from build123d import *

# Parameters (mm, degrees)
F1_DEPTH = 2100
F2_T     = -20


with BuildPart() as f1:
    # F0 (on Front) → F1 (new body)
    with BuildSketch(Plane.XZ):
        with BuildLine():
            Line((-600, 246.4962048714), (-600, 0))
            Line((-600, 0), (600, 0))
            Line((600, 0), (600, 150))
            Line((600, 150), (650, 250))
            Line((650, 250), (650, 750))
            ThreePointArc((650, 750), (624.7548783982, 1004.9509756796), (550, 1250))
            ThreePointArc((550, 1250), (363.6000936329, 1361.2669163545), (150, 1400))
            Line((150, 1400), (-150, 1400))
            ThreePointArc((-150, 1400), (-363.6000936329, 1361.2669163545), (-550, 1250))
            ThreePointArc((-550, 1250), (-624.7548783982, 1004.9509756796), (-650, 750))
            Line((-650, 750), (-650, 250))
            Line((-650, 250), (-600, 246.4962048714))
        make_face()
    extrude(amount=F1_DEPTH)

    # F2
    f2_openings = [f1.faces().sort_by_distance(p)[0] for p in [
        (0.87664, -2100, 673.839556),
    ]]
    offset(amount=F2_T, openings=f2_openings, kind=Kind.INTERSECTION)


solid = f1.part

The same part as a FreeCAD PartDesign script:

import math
import FreeCAD as App
import Part
import Sketcher
Q = App.Units.Quantity


def faces_at(feature, points):
    """Names of the faces that lie closest to the given points."""
    faces = feature.Shape.Faces
    near = lambda p: min(range(len(faces)), key=lambda i: faces[i].distToShape(Part.Vertex(*p))[0])
    return sorted({f"Face{near(p) + 1}" for p in points})

doc = App.newDocument("Part")
params = doc.addObject("Spreadsheet::Sheet", "Params")
for row, (alias, value) in enumerate([
    ("sketch1_radius", "1300 mm"),
    ("sketch1_width", "1200 mm"),
    ("sketch1_width2", "300 mm"),
    ("sketch1_height", "150 mm"),
    ("sketch1_height2", "500 mm"),
    ("pad1_length", "2100 mm"),
    ("thickness_wall", "20 mm"),
], start=1):
    params.set(f"A{row}", alias)
    params.set(f"B{row}", "=" + value)
    params.setAlias(f"B{row}", alias)

body = doc.addObject("PartDesign::Body", "Body")

# Sketch on XZ plane
sketch1 = body.newObject("Sketcher::SketchObject", "Sketch")
sketch1.AttachmentSupport = (doc.getObject("XZ_Plane"), [""])
sketch1.MapMode = "FlatFace"
sketch1.addGeometry(Part.LineSegment(App.Vector(-600, 246.496205, 0), App.Vector(-600, 0, 0)), False)
sketch1.addGeometry(Part.LineSegment(App.Vector(-600, 0, 0), App.Vector(600, 0, 0)), False)
sketch1.addGeometry(Part.LineSegment(App.Vector(600, 0, 0), App.Vector(600, 150, 0)), False)
sketch1.addGeometry(Part.LineSegment(App.Vector(600, 150, 0), App.Vector(650, 250, 0)), False)
sketch1.addGeometry(Part.LineSegment(App.Vector(650, 250, 0), App.Vector(650, 750, 0)), False)
sketch1.addGeometry(Part.ArcOfCircle(Part.Circle(App.Vector(-650, 750, 0), App.Vector(0, 0, 1), 1300), math.radians(0), math.radians(22.619865)), False)
sketch1.addGeometry(Part.ArcOfCircle(Part.Circle(App.Vector(150, 791.666667, 0), App.Vector(0, 0, 1), 608.333333), math.radians(48.88791), math.radians(90)), False)
sketch1.addGeometry(Part.LineSegment(App.Vector(150, 1400, 0), App.Vector(-150, 1400, 0)), False)
sketch1.addGeometry(Part.ArcOfCircle(Part.Circle(App.Vector(-150, 791.666667, 0), App.Vector(0, 0, 1), 608.333333), math.radians(90), math.radians(131.11209)), False)
sketch1.addGeometry(Part.ArcOfCircle(Part.Circle(App.Vector(650, 750, 0), App.Vector(0, 0, 1), 1300), math.radians(157.380135), math.radians(180)), False)
sketch1.addGeometry(Part.LineSegment(App.Vector(-650, 750, 0), App.Vector(-650, 250, 0)), False)
sketch1.addGeometry(Part.LineSegment(App.Vector(-650, 250, 0), App.Vector(-600, 246.496205, 0)), False)
sketch1.addConstraint(Sketcher.Constraint("Coincident", 0, 2, 1, 1))
sketch1.addConstraint(Sketcher.Constraint("Coincident", 1, 2, 2, 1))
sketch1.addConstraint(Sketcher.Constraint("Coincident", 2, 2, 3, 1))
sketch1.addConstraint(Sketcher.Constraint("Coincident", 3, 2, 4, 1))
sketch1.addConstraint(Sketcher.Constraint("Tangent", 4, 2, 5, 1))
sketch1.addConstraint(Sketcher.Constraint("Coincident", 5, 2, 6, 1))
sketch1.addConstraint(Sketcher.Constraint("Tangent", 6, 2, 7, 1))
sketch1.addConstraint(Sketcher.Constraint("Tangent", 7, 2, 8, 1))
sketch1.addConstraint(Sketcher.Constraint("Coincident", 8, 2, 9, 1))
sketch1.addConstraint(Sketcher.Constraint("Tangent", 9, 2, 10, 1))
sketch1.addConstraint(Sketcher.Constraint("Coincident", 10, 2, 11, 1))
sketch1.addConstraint(Sketcher.Constraint("Coincident", 11, 2, 0, 1))
sketch1.addConstraint(Sketcher.Constraint("Vertical", 0))
sketch1.addConstraint(Sketcher.Constraint("Horizontal", 1))
sketch1.addConstraint(Sketcher.Constraint("Vertical", 2))
sketch1.addConstraint(Sketcher.Constraint("Vertical", 4))
sketch1.addConstraint(Sketcher.Constraint("Horizontal", 7))
sketch1.addConstraint(Sketcher.Constraint("Vertical", 10))
sketch1.addConstraint(Sketcher.Constraint("Coincident", 4, 2, 9, 3))
sketch1.addConstraint(Sketcher.Constraint("Equal", 6, 8))
sketch1.addConstraint(Sketcher.Constraint("Equal", 5, 9))
sketch1.addConstraint(Sketcher.Constraint("Symmetric", 0, 2, 1, 2, -1, 1))
sketch1.addConstraint(Sketcher.Constraint("Symmetric", 3, 2, 10, 2, -2))
sketch1.addConstraint(Sketcher.Constraint("Radius", 5, Q("1300 mm")))
sketch1.addConstraint(Sketcher.Constraint("DistanceX", 1, 1, 1, 2, Q("1200 mm")))
sketch1.addConstraint(Sketcher.Constraint("DistanceX", 7, 2, 7, 1, Q("300 mm")))
sketch1.addConstraint(Sketcher.Constraint("DistanceY", 2, 1, 2, 2, Q("150 mm")))
sketch1.addConstraint(Sketcher.Constraint("DistanceY", 4, 1, 4, 2, Q("500 mm")))
sketch1.addConstraint(Sketcher.Constraint("DistanceY", -1, 1, 5, 3, Q("750 mm")))
sketch1.addConstraint(Sketcher.Constraint("DistanceX", -1, 1, 6, 3, Q("150 mm")))
sketch1.addConstraint(Sketcher.Constraint("DistanceY", -1, 1, 6, 2, Q("1400 mm")))
sketch1.addConstraint(Sketcher.Constraint("Radius", 6, Q("608.333333 mm")))
sketch1.addConstraint(Sketcher.Constraint("DistanceY", 0, 2, 0, 1, Q("246.496205 mm")))
sketch1.setExpression("Constraints[23]", "Params.sketch1_radius")
sketch1.setExpression("Constraints[24]", "Params.sketch1_width")
sketch1.setExpression("Constraints[25]", "Params.sketch1_width2")
sketch1.setExpression("Constraints[26]", "Params.sketch1_height")
sketch1.setExpression("Constraints[27]", "Params.sketch1_height2")
pad1 = body.newObject("PartDesign::Pad", "Pad")
pad1.Profile = sketch1
pad1.setExpression("Length", "Params.pad1_length")
doc.recompute()

thickness = body.newObject("PartDesign::Thickness", "Thickness")
thickness.Base = (pad1, faces_at(pad1, [(0, -2100, 700)]))
thickness.setExpression("Value", "Params.thickness_wall")
thickness.Reversed = True
thickness.Join = "Intersection"

doc.recompute()
